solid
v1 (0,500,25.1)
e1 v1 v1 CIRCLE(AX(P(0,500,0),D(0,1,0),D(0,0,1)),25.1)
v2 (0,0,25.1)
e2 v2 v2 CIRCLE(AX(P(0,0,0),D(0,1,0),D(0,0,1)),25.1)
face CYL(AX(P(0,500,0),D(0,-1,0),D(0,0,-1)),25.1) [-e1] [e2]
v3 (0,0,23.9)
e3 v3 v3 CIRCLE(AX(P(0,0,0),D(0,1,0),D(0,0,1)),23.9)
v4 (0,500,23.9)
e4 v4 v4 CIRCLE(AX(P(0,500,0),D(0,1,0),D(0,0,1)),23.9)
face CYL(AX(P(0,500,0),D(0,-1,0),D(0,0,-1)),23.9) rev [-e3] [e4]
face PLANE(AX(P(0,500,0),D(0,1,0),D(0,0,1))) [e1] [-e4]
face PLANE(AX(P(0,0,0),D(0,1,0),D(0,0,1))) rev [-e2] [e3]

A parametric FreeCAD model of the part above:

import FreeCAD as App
import Part
import Sketcher

doc = App.newDocument("Part")
body = doc.addObject("PartDesign::Body", "Body")

sketch1 = body.newObject("Sketcher::SketchObject", "Sketch")
sketch1.AttachmentSupport = (doc.getObject("XZ_Plane"), [""])
sketch1.MapMode = "FlatFace"
sketch1.addGeometry([
    Part.Circle(App.Vector(0, 0, 0), App.Vector(0, 0, 1), 25.1),
    Part.Circle(App.Vector(0, 0, 0), App.Vector(0, 0, 1), 23.9),
], False)
sketch1.addConstraint([
    Sketcher.Constraint("Coincident", 0, 3, -1, 1),
    Sketcher.Constraint("Coincident", 1, 3, -1, 1),
    Sketcher.Constraint("Diameter", 0, 50.2),
    Sketcher.Constraint("Diameter", 1, 47.8),
])
pad1 = body.newObject("PartDesign::Pad", "Pad")
pad1.Profile = sketch1
pad1.Length = 500
pad1.Reversed = True

doc.recompute()
